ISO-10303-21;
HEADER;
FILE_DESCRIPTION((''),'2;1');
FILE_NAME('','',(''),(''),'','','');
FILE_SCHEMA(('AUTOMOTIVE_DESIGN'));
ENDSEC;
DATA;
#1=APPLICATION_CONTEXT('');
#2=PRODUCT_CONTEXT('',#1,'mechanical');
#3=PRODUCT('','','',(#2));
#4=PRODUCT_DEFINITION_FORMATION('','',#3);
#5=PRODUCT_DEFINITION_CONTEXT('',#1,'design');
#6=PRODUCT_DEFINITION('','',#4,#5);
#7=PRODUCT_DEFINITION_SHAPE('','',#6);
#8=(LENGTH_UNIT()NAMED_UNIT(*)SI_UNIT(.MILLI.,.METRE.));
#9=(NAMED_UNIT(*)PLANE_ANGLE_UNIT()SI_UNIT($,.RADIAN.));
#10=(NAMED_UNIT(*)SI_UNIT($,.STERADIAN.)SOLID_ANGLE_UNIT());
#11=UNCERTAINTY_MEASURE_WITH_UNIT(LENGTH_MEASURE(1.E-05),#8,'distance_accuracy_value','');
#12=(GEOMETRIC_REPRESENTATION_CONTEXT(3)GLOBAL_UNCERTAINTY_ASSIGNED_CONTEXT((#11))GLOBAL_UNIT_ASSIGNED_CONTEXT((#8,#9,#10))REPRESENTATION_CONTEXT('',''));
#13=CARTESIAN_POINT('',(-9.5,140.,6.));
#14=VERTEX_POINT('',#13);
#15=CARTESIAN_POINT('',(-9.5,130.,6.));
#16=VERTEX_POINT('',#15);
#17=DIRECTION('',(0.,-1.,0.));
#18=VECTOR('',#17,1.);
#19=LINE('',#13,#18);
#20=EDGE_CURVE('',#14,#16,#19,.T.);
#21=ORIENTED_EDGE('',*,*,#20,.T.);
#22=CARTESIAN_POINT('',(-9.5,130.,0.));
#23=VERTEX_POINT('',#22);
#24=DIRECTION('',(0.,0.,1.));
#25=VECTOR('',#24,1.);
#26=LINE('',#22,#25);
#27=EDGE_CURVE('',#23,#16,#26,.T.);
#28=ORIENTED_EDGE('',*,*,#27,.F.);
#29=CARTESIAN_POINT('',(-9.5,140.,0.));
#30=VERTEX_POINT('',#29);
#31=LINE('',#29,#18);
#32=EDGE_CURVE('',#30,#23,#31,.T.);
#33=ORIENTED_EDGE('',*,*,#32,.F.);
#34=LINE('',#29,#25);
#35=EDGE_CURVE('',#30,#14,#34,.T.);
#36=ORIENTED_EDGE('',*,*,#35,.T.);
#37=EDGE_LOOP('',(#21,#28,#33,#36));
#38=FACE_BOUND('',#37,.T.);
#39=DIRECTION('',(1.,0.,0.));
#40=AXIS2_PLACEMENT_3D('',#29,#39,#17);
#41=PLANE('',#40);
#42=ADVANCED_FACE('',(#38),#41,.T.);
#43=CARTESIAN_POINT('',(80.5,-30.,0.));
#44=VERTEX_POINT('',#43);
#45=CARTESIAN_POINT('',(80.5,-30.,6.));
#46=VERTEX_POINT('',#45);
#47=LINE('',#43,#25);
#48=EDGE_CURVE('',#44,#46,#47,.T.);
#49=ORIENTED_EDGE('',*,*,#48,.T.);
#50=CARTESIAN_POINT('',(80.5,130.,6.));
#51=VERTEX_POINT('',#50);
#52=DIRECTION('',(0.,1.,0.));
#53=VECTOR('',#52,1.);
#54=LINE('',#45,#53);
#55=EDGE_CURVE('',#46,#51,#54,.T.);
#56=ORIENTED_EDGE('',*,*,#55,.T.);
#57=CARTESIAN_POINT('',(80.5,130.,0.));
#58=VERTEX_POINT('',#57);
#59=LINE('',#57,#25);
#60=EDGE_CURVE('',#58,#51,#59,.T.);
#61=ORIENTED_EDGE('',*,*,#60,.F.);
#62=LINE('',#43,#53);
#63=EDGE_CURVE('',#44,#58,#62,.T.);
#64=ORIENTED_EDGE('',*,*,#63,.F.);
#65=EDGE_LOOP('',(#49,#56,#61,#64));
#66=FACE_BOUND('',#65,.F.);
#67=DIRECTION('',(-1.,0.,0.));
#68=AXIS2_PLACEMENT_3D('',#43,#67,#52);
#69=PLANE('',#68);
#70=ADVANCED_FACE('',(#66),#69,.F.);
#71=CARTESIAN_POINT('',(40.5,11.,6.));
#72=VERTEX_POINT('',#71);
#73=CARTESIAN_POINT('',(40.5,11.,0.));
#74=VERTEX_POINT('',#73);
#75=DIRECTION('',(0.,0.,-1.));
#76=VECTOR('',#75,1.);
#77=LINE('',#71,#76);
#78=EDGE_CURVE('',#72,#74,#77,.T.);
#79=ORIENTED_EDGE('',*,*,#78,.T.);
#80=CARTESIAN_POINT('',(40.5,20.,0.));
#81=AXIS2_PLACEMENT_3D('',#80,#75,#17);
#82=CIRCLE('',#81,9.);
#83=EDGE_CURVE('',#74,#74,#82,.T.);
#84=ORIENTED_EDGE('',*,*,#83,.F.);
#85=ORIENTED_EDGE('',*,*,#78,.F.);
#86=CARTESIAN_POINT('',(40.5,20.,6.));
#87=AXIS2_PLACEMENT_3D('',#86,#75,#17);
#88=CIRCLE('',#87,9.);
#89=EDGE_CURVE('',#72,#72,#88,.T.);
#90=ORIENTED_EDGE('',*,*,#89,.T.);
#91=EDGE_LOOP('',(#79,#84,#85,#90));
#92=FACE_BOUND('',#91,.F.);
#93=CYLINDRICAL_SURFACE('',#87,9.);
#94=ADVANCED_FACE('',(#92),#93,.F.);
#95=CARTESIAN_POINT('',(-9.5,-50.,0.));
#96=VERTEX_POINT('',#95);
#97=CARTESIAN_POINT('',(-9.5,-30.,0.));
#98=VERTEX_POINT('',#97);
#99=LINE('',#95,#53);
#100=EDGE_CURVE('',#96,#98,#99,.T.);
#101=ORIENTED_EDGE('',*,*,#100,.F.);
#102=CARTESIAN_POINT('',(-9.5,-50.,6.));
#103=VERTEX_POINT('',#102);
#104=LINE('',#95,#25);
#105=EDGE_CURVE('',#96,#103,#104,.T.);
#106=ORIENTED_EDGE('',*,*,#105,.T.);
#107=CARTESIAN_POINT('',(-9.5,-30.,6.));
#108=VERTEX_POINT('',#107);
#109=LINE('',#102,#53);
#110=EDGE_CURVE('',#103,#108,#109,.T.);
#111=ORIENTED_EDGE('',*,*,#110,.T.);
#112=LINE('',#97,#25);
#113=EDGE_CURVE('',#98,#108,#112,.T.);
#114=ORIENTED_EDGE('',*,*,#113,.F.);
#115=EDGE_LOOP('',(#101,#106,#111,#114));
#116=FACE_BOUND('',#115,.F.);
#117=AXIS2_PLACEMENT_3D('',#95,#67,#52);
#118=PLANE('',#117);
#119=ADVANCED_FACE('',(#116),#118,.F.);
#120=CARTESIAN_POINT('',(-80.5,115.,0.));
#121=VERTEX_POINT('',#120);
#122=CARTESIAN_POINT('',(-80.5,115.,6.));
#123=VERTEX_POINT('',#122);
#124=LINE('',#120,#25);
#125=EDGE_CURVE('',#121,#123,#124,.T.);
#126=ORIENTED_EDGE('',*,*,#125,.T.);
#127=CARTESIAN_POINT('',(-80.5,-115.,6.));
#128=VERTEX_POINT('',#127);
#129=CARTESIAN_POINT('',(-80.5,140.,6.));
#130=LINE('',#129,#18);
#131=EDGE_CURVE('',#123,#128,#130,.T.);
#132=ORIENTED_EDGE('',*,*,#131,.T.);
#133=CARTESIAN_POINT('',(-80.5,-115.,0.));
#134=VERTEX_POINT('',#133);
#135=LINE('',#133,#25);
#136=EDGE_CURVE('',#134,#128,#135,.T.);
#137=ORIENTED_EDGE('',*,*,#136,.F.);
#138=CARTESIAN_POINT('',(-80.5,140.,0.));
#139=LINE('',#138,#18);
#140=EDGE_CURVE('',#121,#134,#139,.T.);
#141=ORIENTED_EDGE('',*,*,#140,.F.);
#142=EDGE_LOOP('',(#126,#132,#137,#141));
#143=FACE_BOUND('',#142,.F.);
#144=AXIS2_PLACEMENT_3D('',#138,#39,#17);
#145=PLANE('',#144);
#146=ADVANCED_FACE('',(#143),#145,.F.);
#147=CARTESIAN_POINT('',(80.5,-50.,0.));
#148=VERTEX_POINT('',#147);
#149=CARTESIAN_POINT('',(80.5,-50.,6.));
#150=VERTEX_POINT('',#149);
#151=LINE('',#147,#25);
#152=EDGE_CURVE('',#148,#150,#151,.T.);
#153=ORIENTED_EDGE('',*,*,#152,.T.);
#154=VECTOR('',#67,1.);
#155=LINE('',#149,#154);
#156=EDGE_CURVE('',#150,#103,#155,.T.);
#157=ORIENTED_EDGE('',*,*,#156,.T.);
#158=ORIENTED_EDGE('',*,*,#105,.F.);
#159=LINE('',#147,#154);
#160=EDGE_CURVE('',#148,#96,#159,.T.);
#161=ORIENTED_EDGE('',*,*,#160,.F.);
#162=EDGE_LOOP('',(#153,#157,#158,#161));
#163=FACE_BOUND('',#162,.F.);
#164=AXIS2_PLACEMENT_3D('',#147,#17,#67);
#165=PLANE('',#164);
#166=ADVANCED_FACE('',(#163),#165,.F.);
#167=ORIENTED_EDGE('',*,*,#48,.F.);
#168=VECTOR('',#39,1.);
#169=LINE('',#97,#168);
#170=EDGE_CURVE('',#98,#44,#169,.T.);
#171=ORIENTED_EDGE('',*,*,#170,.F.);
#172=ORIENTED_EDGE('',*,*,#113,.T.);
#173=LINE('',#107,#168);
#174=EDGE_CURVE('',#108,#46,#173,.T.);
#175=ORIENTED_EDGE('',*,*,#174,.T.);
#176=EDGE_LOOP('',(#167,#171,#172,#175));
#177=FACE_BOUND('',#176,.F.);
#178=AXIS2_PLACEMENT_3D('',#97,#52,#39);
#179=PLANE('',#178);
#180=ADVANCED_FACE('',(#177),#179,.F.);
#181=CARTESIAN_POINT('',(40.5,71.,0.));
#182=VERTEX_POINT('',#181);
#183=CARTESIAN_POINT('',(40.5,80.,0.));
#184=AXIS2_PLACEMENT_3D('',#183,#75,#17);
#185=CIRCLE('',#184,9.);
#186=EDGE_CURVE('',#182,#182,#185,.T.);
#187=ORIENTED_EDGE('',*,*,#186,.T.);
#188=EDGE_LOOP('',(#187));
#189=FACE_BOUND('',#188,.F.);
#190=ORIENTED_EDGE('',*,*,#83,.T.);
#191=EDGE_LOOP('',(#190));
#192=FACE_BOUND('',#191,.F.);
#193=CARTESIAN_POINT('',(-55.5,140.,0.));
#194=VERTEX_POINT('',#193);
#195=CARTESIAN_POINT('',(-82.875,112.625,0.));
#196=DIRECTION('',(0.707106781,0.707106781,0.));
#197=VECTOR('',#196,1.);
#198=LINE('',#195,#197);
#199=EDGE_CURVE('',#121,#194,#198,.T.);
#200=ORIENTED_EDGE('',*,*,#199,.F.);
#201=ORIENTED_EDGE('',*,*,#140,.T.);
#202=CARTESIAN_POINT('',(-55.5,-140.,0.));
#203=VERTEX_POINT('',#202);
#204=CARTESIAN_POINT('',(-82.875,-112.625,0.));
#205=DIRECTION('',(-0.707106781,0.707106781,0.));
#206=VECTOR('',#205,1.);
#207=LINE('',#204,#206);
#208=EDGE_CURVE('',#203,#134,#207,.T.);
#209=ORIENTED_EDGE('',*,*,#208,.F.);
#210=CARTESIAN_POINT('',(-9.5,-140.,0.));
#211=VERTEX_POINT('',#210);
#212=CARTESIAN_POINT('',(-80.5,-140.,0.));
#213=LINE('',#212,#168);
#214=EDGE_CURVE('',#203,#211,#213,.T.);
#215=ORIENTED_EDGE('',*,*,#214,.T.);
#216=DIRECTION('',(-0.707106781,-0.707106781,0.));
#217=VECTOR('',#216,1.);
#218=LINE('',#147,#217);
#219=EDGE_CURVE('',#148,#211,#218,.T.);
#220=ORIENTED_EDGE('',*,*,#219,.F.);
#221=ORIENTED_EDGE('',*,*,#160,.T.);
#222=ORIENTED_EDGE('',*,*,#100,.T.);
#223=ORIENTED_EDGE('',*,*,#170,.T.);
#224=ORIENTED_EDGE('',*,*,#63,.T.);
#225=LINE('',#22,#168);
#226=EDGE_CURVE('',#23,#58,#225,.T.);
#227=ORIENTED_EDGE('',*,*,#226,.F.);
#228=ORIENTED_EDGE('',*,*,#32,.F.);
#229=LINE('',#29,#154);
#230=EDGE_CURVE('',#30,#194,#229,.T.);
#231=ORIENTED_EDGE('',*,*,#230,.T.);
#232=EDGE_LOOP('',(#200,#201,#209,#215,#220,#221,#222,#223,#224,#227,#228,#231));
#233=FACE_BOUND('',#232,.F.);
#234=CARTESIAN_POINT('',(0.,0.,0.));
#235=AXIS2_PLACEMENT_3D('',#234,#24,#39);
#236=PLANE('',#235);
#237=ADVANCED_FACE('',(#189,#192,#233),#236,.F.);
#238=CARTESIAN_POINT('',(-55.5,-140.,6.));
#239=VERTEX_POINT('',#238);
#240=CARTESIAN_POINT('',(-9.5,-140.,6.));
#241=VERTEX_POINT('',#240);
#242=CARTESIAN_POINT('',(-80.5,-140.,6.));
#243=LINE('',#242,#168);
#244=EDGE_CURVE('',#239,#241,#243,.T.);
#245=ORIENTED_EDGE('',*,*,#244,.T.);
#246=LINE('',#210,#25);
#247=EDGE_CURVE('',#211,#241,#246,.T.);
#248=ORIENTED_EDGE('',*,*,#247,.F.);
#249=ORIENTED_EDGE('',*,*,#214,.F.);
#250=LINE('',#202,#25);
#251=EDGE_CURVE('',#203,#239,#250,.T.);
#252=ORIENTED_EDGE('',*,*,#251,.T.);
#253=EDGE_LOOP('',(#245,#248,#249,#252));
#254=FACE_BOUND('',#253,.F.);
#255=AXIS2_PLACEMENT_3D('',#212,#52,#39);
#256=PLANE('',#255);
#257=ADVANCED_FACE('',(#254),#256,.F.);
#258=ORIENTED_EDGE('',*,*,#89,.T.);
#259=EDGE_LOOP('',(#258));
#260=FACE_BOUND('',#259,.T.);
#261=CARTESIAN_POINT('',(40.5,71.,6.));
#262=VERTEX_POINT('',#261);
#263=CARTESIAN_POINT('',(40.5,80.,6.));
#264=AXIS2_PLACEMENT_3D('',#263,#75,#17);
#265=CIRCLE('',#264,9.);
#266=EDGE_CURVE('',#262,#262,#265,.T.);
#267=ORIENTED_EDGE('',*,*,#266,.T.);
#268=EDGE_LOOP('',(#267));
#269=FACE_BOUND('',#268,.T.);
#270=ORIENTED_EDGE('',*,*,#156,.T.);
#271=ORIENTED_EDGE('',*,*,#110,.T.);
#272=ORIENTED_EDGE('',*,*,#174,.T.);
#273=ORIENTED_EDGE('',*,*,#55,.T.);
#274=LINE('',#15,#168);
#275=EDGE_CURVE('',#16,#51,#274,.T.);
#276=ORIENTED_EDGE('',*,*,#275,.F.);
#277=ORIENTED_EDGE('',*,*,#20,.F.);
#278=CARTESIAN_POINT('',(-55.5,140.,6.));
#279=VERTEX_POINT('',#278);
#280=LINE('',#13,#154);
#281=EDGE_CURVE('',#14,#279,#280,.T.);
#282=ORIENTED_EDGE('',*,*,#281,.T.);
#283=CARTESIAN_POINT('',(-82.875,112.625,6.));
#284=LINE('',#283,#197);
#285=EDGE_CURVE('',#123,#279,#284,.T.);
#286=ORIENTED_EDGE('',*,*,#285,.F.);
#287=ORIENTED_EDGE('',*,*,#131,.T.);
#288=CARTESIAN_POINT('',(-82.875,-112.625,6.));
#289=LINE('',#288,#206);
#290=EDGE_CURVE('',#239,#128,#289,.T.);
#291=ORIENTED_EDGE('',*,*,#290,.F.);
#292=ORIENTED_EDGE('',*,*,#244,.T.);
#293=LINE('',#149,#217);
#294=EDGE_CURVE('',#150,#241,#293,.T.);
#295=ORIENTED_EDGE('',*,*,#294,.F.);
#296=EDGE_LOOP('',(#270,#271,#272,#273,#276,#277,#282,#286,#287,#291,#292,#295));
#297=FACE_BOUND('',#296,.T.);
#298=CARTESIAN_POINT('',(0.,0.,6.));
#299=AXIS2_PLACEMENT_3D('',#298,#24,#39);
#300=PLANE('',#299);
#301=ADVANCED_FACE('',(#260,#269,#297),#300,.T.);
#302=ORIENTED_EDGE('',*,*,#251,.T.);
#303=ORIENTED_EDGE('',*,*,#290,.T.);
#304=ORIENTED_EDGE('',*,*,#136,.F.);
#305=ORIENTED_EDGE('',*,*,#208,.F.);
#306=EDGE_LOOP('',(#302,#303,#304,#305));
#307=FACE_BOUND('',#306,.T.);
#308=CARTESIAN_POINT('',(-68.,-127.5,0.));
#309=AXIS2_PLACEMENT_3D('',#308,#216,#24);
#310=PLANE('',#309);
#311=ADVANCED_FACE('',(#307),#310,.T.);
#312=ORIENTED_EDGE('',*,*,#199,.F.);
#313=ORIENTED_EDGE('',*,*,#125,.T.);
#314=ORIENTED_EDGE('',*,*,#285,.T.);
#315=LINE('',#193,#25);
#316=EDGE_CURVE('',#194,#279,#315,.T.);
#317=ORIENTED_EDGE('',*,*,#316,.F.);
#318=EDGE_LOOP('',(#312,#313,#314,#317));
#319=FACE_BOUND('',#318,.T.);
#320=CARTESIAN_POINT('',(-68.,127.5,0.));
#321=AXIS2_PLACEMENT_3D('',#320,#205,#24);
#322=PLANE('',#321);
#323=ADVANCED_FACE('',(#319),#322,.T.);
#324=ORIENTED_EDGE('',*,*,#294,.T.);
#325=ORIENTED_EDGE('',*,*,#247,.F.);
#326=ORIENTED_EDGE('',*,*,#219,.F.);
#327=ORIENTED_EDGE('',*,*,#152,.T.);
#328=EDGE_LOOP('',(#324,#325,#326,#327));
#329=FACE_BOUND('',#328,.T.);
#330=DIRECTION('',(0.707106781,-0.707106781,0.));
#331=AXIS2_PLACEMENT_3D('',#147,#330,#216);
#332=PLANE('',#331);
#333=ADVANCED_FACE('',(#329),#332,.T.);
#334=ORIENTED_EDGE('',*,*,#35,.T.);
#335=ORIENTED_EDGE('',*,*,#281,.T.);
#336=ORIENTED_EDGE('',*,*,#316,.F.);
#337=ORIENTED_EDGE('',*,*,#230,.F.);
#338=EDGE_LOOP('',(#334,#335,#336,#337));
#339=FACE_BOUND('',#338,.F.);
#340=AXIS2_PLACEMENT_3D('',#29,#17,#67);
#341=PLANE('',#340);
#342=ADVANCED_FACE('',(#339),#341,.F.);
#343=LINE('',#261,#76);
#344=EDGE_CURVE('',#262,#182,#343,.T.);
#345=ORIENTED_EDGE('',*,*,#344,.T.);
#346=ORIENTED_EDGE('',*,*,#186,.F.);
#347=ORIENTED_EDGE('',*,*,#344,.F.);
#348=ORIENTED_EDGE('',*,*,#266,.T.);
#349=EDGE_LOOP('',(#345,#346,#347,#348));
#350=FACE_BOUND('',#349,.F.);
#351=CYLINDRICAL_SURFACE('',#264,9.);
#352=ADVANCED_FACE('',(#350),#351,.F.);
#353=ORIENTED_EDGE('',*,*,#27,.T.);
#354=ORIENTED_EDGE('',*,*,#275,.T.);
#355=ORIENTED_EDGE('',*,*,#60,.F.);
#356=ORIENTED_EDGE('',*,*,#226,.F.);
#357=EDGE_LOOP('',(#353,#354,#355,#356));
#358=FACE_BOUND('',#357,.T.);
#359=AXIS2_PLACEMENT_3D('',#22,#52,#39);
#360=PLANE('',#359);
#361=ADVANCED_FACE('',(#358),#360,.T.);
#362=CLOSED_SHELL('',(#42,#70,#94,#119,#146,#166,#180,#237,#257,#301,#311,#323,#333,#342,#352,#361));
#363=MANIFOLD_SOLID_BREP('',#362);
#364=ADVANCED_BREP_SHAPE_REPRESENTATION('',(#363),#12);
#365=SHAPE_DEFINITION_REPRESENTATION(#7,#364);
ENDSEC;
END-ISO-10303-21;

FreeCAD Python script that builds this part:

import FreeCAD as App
import Part
import Sketcher
Q = App.Units.Quantity


def edges_at(feature, points):
    """Names of the edges that pass closest to the given points."""
    edges = feature.Shape.Edges
    near = lambda p: min(range(len(edges)), key=lambda i: edges[i].distToShape(Part.Vertex(*p))[0])
    return sorted({f"Edge{near(p) + 1}" for p in points})


def add_polygon(sketch, points):
    """Adds a closed chain of lines whose ends are joined by coincident constraints."""
    first, n = sketch.GeometryCount, len(points)
    for a, b in zip(points, points[1:] + points[:1]):
        sketch.addGeometry(Part.LineSegment(App.Vector(*a, 0), App.Vector(*b, 0)), False)
    for i in range(n):
        sketch.addConstraint(Sketcher.Constraint("Coincident", first + i, 2, first + (i + 1) % n, 1))

doc = App.newDocument("Part")
params = doc.addObject("Spreadsheet::Sheet", "Params")
for row, (alias, value) in enumerate([
    ("sketch1_width", "71 mm"),
    ("sketch1_width2", "90 mm"),
    ("sketch1_height", "280 mm"),
    ("sketch1_height2", "20 mm"),
    ("sketch1_height3", "10 mm"),
    ("pad1_length", "6 mm"),
    ("chamfer_size", "25 mm"),
    ("sketch2_diameter", "18 mm"),
    ("hole_diameter", "18 mm"),
], start=1):
    params.set(f"A{row}", alias)
    params.set(f"B{row}", "=" + value)
    params.setAlias(f"B{row}", alias)

body = doc.addObject("PartDesign::Body", "Body")

# Sketch on XY plane
sketch1 = doc.addObject("Sketcher::SketchObject", "Sketch")
body.addObject(sketch1)
sketch1.AttachmentSupport = (doc.XY_Plane, [""])
sketch1.MapMode = "FlatFace"
add_polygon(sketch1, [(-10, 130), (-10, 140), (-80, 140), (-80, -140), (-10, -140), (80, -50), (-10, -50), (-10, -30), (80, -30), (80, 130)])  # lines 0-9
sketch1.addConstraint([
    Sketcher.Constraint("Vertical", 0),
    Sketcher.Constraint("Horizontal", 1),
    Sketcher.Constraint("Vertical", 2),
    Sketcher.Constraint("Horizontal", 3),
    Sketcher.Constraint("Horizontal", 5),
    Sketcher.Constraint("Vertical", 6),
    Sketcher.Constraint("Horizontal", 7),
    Sketcher.Constraint("Vertical", 8),
    Sketcher.Constraint("Horizontal", 9),
    Sketcher.Constraint("Symmetric", 0, 2, 3, 2, -1),
    Sketcher.Constraint("Vertical", 3, 2, 5, 2),
    Sketcher.Constraint("Vertical", 4, 2, 7, 2),
    Sketcher.Constraint("DistanceX", 1, 2, 1, 1, Q("71 mm")),
    Sketcher.Constraint("DistanceX", 5, 2, 5, 1, Q("90 mm")),
    Sketcher.Constraint("DistanceY", 2, 2, 2, 1, Q("280 mm")),
    Sketcher.Constraint("DistanceY", 6, 1, 6, 2, Q("20 mm")),
    Sketcher.Constraint("DistanceY", 3, 2, 4, 2, Q("90 mm")),
    Sketcher.Constraint("DistanceY", 0, 1, 0, 2, Q("10 mm")),
    Sketcher.Constraint("DistanceX", 0, 2, -1, 1, Q("9.5 mm")),
])
sketch1.setExpression("Constraints[22]", "Params.sketch1_width")
sketch1.setExpression("Constraints[23]", "Params.sketch1_width2")
sketch1.setExpression("Constraints[24]", "Params.sketch1_height")
sketch1.setExpression("Constraints[25]", "Params.sketch1_height2")
sketch1.setExpression("Constraints[27]", "Params.sketch1_height3")
pad1 = doc.addObject("PartDesign::Pad", "Pad")
body.addObject(pad1)
pad1.Profile = sketch1
pad1.setExpression("Length", "Params.pad1_length")
doc.recompute()

chamfer = doc.addObject("PartDesign::Chamfer", "Chamfer")
body.addObject(chamfer)
chamfer.Base = (pad1, edges_at(pad1, [(-80.5, -140, 3), (-80.5, 140, 3)]))
chamfer.setExpression("Size", "Params.chamfer_size")

# Sketch on XY plane
sketch2 = doc.addObject("Sketcher::SketchObject", "Sketch001")
body.addObject(sketch2)
sketch2.AttachmentSupport = (doc.XY_Plane, [""])
sketch2.MapMode = "FlatFace"
sketch2.AttachmentOffset = App.Placement(App.Vector(0, 0, 6), App.Rotation())
sketch2.addGeometry([
    Part.Circle(App.Vector(40, 80, 0), App.Vector(0, 0, 1), 9),
    Part.Circle(App.Vector(40, 20, 0), App.Vector(0, 0, 1), 9),
], False)
sketch2.addConstraint([
    Sketcher.Constraint("Equal", 0, 1),
    Sketcher.Constraint("Vertical", 0, 3, 1, 3),
    Sketcher.Constraint("Diameter", 0, Q("18 mm")),
    Sketcher.Constraint("DistanceY", -1, 1, 0, 3, Q("80 mm")),
    Sketcher.Constraint("DistanceY", -1, 1, 1, 3, Q("20 mm")),
    Sketcher.Constraint("DistanceX", -1, 1, 0, 3, Q("40.5 mm")),
])
sketch2.setExpression("Constraints[2]", "Params.sketch2_diameter")
doc.recompute()
hole = doc.addObject("PartDesign::Hole", "Hole")
body.addObject(hole)
hole.Profile = sketch2
hole.ThreadType = "None"
hole.setExpression("Diameter", "Params.hole_diameter")
hole.DepthType = "ThroughAll"

doc.recompute()
